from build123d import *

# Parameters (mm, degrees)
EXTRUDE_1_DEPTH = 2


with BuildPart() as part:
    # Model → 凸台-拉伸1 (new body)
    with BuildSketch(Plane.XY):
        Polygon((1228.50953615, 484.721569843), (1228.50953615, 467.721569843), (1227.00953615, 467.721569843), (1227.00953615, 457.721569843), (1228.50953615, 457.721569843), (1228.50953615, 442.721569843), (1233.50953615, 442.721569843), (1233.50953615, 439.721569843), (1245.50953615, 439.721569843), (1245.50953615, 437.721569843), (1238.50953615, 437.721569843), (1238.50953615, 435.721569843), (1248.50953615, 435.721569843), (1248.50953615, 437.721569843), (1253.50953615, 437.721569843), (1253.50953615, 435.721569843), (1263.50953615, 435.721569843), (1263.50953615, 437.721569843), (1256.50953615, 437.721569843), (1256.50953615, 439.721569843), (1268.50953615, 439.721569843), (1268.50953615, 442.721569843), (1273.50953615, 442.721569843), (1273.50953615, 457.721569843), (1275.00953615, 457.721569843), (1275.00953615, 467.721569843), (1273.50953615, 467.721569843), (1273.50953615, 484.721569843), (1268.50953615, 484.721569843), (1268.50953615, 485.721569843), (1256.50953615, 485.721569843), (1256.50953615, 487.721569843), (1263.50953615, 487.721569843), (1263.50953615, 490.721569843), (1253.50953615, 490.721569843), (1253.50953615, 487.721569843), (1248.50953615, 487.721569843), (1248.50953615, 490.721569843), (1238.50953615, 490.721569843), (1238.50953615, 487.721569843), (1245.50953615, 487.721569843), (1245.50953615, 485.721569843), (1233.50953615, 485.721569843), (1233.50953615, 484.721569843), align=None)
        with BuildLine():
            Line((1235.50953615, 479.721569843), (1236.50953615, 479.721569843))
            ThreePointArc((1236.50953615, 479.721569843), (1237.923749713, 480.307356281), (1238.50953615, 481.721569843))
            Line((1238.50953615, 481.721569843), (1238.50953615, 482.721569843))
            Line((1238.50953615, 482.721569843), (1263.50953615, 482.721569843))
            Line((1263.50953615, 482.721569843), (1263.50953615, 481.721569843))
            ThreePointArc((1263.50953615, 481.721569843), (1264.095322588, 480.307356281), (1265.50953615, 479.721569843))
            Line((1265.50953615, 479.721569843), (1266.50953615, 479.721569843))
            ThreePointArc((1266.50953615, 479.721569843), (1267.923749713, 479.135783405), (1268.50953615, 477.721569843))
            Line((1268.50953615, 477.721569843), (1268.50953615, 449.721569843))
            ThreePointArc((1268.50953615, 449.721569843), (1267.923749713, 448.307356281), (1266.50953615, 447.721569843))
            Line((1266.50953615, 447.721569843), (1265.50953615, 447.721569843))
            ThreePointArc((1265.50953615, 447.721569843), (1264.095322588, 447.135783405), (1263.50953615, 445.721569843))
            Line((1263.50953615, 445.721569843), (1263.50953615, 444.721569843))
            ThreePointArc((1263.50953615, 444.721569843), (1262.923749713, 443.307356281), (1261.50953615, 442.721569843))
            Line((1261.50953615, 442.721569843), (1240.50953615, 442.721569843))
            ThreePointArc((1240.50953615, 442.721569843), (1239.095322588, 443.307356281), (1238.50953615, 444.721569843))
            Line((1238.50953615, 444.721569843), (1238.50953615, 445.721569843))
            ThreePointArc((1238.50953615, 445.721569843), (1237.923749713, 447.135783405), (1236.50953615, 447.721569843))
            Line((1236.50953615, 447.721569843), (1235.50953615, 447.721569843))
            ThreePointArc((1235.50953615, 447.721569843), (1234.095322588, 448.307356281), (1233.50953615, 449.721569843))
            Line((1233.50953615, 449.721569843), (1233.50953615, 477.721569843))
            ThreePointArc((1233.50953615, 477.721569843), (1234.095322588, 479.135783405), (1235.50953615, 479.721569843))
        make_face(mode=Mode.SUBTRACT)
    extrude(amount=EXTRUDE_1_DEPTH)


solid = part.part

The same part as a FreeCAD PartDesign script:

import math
import FreeCAD as App
import Part
import Sketcher

V = App.Vector


def add_polygon(sketch, points):
    """Adds a closed chain of lines whose ends are joined by coincident constraints."""
    first, n = sketch.GeometryCount, len(points)
    for a, b in zip(points, points[1:] + points[:1]):
        sketch.addGeometry(Part.LineSegment(App.Vector(*a, 0), App.Vector(*b, 0)), False)
    for i in range(n):
        sketch.addConstraint(Sketcher.Constraint("Coincident", first + i, 2, first + (i + 1) % n, 1))

doc = App.newDocument("Part")
body = doc.addObject("PartDesign::Body", "Body")

sketch1 = body.newObject("Sketcher::SketchObject", "Sketch")
sketch1.AttachmentSupport = (doc.getObject("XY_Plane"), [""])
sketch1.MapMode = "FlatFace"
add_polygon(sketch1, [(1228.5, 484.7), (1228.5, 467.7), (1227, 467.7), (1227, 457.7), (1228.5, 457.7), (1228.5, 442.7), (1233.5, 442.7), (1233.5, 439.7), (1245.5, 439.7), (1245.5, 437.7), (1238.5, 437.7), (1238.5, 435.7), (1248.5, 435.7), (1248.5, 437.7), (1253.5, 437.7), (1253.5, 435.7), (1263.5, 435.7), (1263.5, 437.7), (1256.5, 437.7), (1256.5, 439.7), (1268.5, 439.7), (1268.5, 442.7), (1273.5, 442.7), (1273.5, 457.7), (1275, 457.7), (1275, 467.7), (1273.5, 467.7), (1273.5, 484.7), (1268.5, 484.7), (1268.5, 485.7), (1256.5, 485.7), (1256.5, 487.7), (1263.5, 487.7), (1263.5, 490.7), (1253.5, 490.7), (1253.5, 487.7), (1248.5, 487.7), (1248.5, 490.7), (1238.5, 490.7), (1238.5, 487.7), (1245.5, 487.7), (1245.5, 485.7), (1233.5, 485.7), (1233.5, 484.7)])
sketch1.addGeometry(Part.ArcOfCircle(Part.Circle(V(1235.5, 477.7, 0), V(0, 0, 1), 2), math.radians(90), math.radians(180)), False)
sketch1.addGeometry(Part.LineSegment(V(1235.5, 479.7, 0), V(1236.5, 479.7, 0)), False)
sketch1.addGeometry(Part.ArcOfCircle(Part.Circle(V(1236.5, 481.7, 0), V(0, 0, 1), 2), math.radians(-90), math.radians(0)), False)
sketch1.addGeometry(Part.LineSegment(V(1238.5, 481.7, 0), V(1238.5, 482.7, 0)), False)
sketch1.addGeometry(Part.LineSegment(V(1238.5, 482.7, 0), V(1263.5, 482.7, 0)), False)
sketch1.addGeometry(Part.LineSegment(V(1263.5, 482.7, 0), V(1263.5, 481.7, 0)), False)
sketch1.addGeometry(Part.ArcOfCircle(Part.Circle(V(1265.5, 481.7, 0), V(0, 0, 1), 2), math.radians(-180), math.radians(-90)), False)
sketch1.addGeometry(Part.LineSegment(V(1265.5, 479.7, 0), V(1266.5, 479.7, 0)), False)
sketch1.addGeometry(Part.ArcOfCircle(Part.Circle(V(1266.5, 477.7, 0), V(0, 0, 1), 2), math.radians(0), math.radians(90)), False)
sketch1.addGeometry(Part.LineSegment(V(1268.5, 477.7, 0), V(1268.5, 449.7, 0)), False)
sketch1.addGeometry(Part.ArcOfCircle(Part.Circle(V(1266.5, 449.7, 0), V(0, 0, 1), 2), math.radians(-90), math.radians(0)), False)
sketch1.addGeometry(Part.LineSegment(V(1266.5, 447.7, 0), V(1265.5, 447.7, 0)), False)
sketch1.addGeometry(Part.ArcOfCircle(Part.Circle(V(1265.5, 445.7, 0), V(0, 0, 1), 2), math.radians(90), math.radians(180)), False)
sketch1.addGeometry(Part.LineSegment(V(1263.5, 445.7, 0), V(1263.5, 444.7, 0)), False)
sketch1.addGeometry(Part.ArcOfCircle(Part.Circle(V(1261.5, 444.7, 0), V(0, 0, 1), 2), math.radians(-90), math.radians(0)), False)
sketch1.addGeometry(Part.LineSegment(V(1261.5, 442.7, 0), V(1240.5, 442.7, 0)), False)
sketch1.addGeometry(Part.ArcOfCircle(Part.Circle(V(1240.5, 444.7, 0), V(0, 0, 1), 2), math.radians(-180), math.radians(-90)), False)
sketch1.addGeometry(Part.LineSegment(V(1238.5, 444.7, 0), V(1238.5, 445.7, 0)), False)
sketch1.addGeometry(Part.ArcOfCircle(Part.Circle(V(1236.5, 445.7, 0), V(0, 0, 1), 2), math.radians(0), math.radians(90)), False)
sketch1.addGeometry(Part.LineSegment(V(1236.5, 447.7, 0), V(1235.5, 447.7, 0)), False)
sketch1.addGeometry(Part.ArcOfCircle(Part.Circle(V(1235.5, 449.7, 0), V(0, 0, 1), 2), math.radians(-180), math.radians(-90)), False)
sketch1.addGeometry(Part.LineSegment(V(1233.5, 449.7, 0), V(1233.5, 477.7, 0)), False)
sketch1.addConstraint([
    Sketcher.Constraint("Tangent", 44, 1, 45, 1),
    Sketcher.Constraint("Tangent", 45, 2, 46, 1),
    Sketcher.Constraint("Tangent", 46, 2, 47, 1),
    Sketcher.Constraint("Coincident", 47, 2, 48, 1),
    Sketcher.Constraint("Coincident", 48, 2, 49, 1),
    Sketcher.Constraint("Tangent", 49, 2, 50, 1),
    Sketcher.Constraint("Tangent", 50, 2, 51, 1),
    Sketcher.Constraint("Tangent", 51, 2, 52, 2),
    Sketcher.Constraint("Tangent", 52, 1, 53, 1),
    Sketcher.Constraint("Tangent", 53, 2, 54, 2),
    Sketcher.Constraint("Tangent", 54, 1, 55, 1),
    Sketcher.Constraint("Tangent", 55, 2, 56, 1),
    Sketcher.Constraint("Tangent", 56, 2, 57, 1),
    Sketcher.Constraint("Tangent", 57, 2, 58, 2),
    Sketcher.Constraint("Tangent", 58, 1, 59, 1),
    Sketcher.Constraint("Tangent", 59, 2, 60, 2),
    Sketcher.Constraint("Tangent", 60, 1, 61, 1),
    Sketcher.Constraint("Tangent", 61, 2, 62, 1),
    Sketcher.Constraint("Tangent", 62, 2, 63, 1),
    Sketcher.Constraint("Tangent", 63, 2, 64, 2),
    Sketcher.Constraint("Tangent", 64, 1, 65, 1),
    Sketcher.Constraint("Tangent", 65, 2, 44, 2),
    Sketcher.Constraint("Vertical", 0),
    Sketcher.Constraint("Horizontal", 1),
    Sketcher.Constraint("Vertical", 2),
    Sketcher.Constraint("Horizontal", 3),
    Sketcher.Constraint("Vertical", 4),
    Sketcher.Constraint("Horizontal", 5),
    Sketcher.Constraint("Vertical", 6),
    Sketcher.Constraint("Horizontal", 7),
    Sketcher.Constraint("Vertical", 8),
    Sketcher.Constraint("Horizontal", 9),
    Sketcher.Constraint("Vertical", 10),
    Sketcher.Constraint("Horizontal", 11),
    Sketcher.Constraint("Vertical", 12),
    Sketcher.Constraint("Horizontal", 13),
    Sketcher.Constraint("Vertical", 14),
    Sketcher.Constraint("Horizontal", 15),
    Sketcher.Constraint("Vertical", 16),
    Sketcher.Constraint("Horizontal", 17),
    Sketcher.Constraint("Vertical", 18),
    Sketcher.Constraint("Horizontal", 19),
    Sketcher.Constraint("Vertical", 20),
    Sketcher.Constraint("Horizontal", 21),
    Sketcher.Constraint("Vertical", 22),
    Sketcher.Constraint("Horizontal", 23),
    Sketcher.Constraint("Vertical", 24),
    Sketcher.Constraint("Horizontal", 25),
    Sketcher.Constraint("Vertical", 26),
    Sketcher.Constraint("Horizontal", 27),
    Sketcher.Constraint("Vertical", 28),
    Sketcher.Constraint("Horizontal", 29),
    Sketcher.Constraint("Vertical", 30),
    Sketcher.Constraint("Horizontal", 31),
    Sketcher.Constraint("Vertical", 32),
    Sketcher.Constraint("Horizontal", 33),
    Sketcher.Constraint("Vertical", 34),
    Sketcher.Constraint("Horizontal", 35),
    Sketcher.Constraint("Vertical", 36),
    Sketcher.Constraint("Horizontal", 37),
    Sketcher.Constraint("Vertical", 38),
    Sketcher.Constraint("Horizontal", 39),
    Sketcher.Constraint("Vertical", 40),
    Sketcher.Constraint("Horizontal", 41),
    Sketcher.Constraint("Vertical", 42),
    Sketcher.Constraint("Horizontal", 43),
    Sketcher.Constraint("Horizontal", 45),
    Sketcher.Constraint("Vertical", 47),
    Sketcher.Constraint("Horizontal", 48),
    Sketcher.Constraint("Vertical", 49),
    Sketcher.Constraint("Horizontal", 51),
    Sketcher.Constraint("Vertical", 53),
    Sketcher.Constraint("Horizontal", 55),
    Sketcher.Constraint("Vertical", 57),
    Sketcher.Constraint("Horizontal", 59),
    Sketcher.Constraint("Vertical", 61),
    Sketcher.Constraint("Horizontal", 63),
    Sketcher.Constraint("Vertical", 65),
    Sketcher.Constraint("Equal", 44, 46),
    Sketcher.Constraint("Equal", 46, 50),
    Sketcher.Constraint("Equal", 50, 52),
    Sketcher.Constraint("Equal", 52, 54),
    Sketcher.Constraint("Equal", 54, 56),
    Sketcher.Constraint("Equal", 56, 58),
    Sketcher.Constraint("Equal", 58, 60),
    Sketcher.Constraint("Equal", 60, 62),
    Sketcher.Constraint("Equal", 62, 64),
    Sketcher.Constraint("Horizontal", 46, 3, 50, 3),
    Sketcher.Constraint("Horizontal", 56, 3, 62, 3),
    Sketcher.Constraint("Horizontal", 9, 2, 12, 2),
    Sketcher.Constraint("Horizontal", 11, 2, 14, 2),
    Sketcher.Constraint("Horizontal", 13, 2, 16, 2),
    Sketcher.Constraint("Horizontal", 7, 2, 18, 2),
    Sketcher.Constraint("Horizontal", 5, 2, 20, 2),
    Sketcher.Constraint("Horizontal", 3, 2, 22, 2),
    Sketcher.Constraint("Horizontal", 1, 2, 24, 2),
    Sketcher.Constraint("Horizontal", 31, 2, 34, 2),
    Sketcher.Constraint("Horizontal", 33, 2, 36, 2),
    Sketcher.Constraint("Horizontal", 35, 2, 38, 2),
    Sketcher.Constraint("Horizontal", 29, 2, 40, 2),
    Sketcher.Constraint("Horizontal", 27, 2, 42, 2),
    Sketcher.Constraint("Horizontal", 21, 2, 58, 1),
    Sketcher.Constraint("Vertical", 50, 3, 56, 3),
    Sketcher.Constraint("Vertical", 46, 3, 62, 3),
    Sketcher.Constraint("Vertical", 0, 2, 3, 2),
    Sketcher.Constraint("Vertical", 22, 2, 25, 2),
    Sketcher.Constraint("Vertical", 20, 2, 27, 2),
    Sketcher.Constraint("Vertical", 18, 2, 29, 2),
    Sketcher.Constraint("Vertical", 16, 2, 31, 2),
    Sketcher.Constraint("Vertical", 14, 2, 33, 2),
    Sketcher.Constraint("Vertical", 12, 2, 35, 2),
    Sketcher.Constraint("Vertical", 10, 2, 37, 2),
    Sketcher.Constraint("Vertical", 8, 2, 39, 2),
    Sketcher.Constraint("Vertical", 6, 2, 41, 2),
    Sketcher.Constraint("Vertical", 38, 2, 46, 2),
    Sketcher.Constraint("Vertical", 32, 2, 48, 2),
    Sketcher.Constraint("Vertical", 28, 2, 52, 1),
    Sketcher.Constraint("Vertical", 42, 2, 64, 1),
    Sketcher.Constraint("Equal", 5, 13),
    Sketcher.Constraint("Equal", 11, 15),
    Sketcher.Constraint("Equal", 9, 17),
    Sketcher.Constraint("Equal", 7, 19),
    Sketcher.Constraint("Equal", 13, 21),
    Sketcher.Constraint("Equal", 3, 23),
    Sketcher.Constraint("Equal", 37, 2),
    Sketcher.Constraint("Equal", 8, 10),
    Sketcher.Constraint("Equal", 63, 28),
    Sketcher.Constraint("Equal", 18, 30),
    Sketcher.Constraint("Equal", 20, 32),
    Sketcher.Constraint("Equal", 42, 47),
    Sketcher.Constraint("Equal", 49, 57),
    Sketcher.Constraint("Radius", 44, 2.0),
    Sketcher.Constraint("DistanceX", 5, 1, 5, 2, 5.0),
    Sketcher.Constraint("DistanceX", 7, 1, 7, 2, 12.0),
    Sketcher.Constraint("DistanceX", 9, 2, 9, 1, 7.0),
    Sketcher.Constraint("DistanceX", 11, 1, 11, 2, 10.0),
    Sketcher.Constraint("DistanceY", 0, 2, 0, 1, 17.0),
    Sketcher.Constraint("DistanceY", 4, 2, 4, 1, 15.0),
    Sketcher.Constraint("DistanceY", 6, 2, 6, 1, 3.0),
    Sketcher.Constraint("DistanceY", 8, 2, 8, 1, 2.0),
    Sketcher.Constraint("DistanceY", 53, 2, 53, 1, 28.0),
    Sketcher.Constraint("DistanceX", 1, 2, 1, 1, 1.5),
    Sketcher.Constraint("DistanceY", -1, 1, 44, 3, 477.72157),
    Sketcher.Constraint("DistanceX", -1, 1, 44, 3, 1235.509536),
])
pad1 = body.newObject("PartDesign::Pad", "Pad")
pad1.Profile = sketch1
pad1.Length = 2

doc.recompute()
